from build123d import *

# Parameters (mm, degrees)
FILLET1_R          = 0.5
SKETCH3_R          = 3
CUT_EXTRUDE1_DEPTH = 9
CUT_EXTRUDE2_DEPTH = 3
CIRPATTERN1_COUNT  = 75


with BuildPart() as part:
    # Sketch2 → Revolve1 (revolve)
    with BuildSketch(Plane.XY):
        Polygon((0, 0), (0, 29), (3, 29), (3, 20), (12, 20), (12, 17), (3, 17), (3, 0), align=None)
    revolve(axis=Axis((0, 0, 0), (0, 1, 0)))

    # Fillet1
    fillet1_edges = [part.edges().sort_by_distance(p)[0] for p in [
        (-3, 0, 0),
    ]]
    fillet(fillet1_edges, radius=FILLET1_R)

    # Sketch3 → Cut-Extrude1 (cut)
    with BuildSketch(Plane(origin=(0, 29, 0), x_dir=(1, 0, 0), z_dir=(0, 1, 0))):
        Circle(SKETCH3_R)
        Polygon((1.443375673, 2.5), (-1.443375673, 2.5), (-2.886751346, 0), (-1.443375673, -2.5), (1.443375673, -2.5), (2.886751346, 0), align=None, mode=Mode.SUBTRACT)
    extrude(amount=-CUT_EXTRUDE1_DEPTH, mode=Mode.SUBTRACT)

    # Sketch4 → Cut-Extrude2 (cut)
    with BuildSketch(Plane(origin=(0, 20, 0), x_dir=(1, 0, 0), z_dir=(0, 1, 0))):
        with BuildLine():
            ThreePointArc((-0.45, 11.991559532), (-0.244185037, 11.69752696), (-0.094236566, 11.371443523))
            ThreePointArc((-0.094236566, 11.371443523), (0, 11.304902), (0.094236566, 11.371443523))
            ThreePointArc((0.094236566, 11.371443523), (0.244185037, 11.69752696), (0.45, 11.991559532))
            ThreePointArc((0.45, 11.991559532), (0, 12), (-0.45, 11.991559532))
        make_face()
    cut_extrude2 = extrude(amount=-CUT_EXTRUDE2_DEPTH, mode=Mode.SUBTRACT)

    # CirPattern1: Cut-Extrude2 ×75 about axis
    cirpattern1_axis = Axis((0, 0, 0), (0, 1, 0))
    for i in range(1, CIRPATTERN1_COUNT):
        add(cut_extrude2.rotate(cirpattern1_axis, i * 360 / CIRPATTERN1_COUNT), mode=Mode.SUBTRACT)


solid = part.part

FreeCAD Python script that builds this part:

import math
import FreeCAD as App
import Part
import Sketcher
Q = App.Units.Quantity


def edges_at(feature, points):
    """Names of the edges that pass closest to the given points."""
    edges = feature.Shape.Edges
    near = lambda p: min(range(len(edges)), key=lambda i: edges[i].distToShape(Part.Vertex(*p))[0])
    return sorted({f"Edge{near(p) + 1}" for p in points})


def add_polygon(sketch, points):
    """Adds a closed chain of lines whose ends are joined by coincident constraints."""
    first, n = sketch.GeometryCount, len(points)
    for a, b in zip(points, points[1:] + points[:1]):
        sketch.addGeometry(Part.LineSegment(App.Vector(*a, 0), App.Vector(*b, 0)), False)
    for i in range(n):
        sketch.addConstraint(Sketcher.Constraint("Coincident", first + i, 2, first + (i + 1) % n, 1))

doc = App.newDocument("Part")
body = doc.addObject("PartDesign::Body", "Body")

# Sketch on XY plane
sketch1 = body.newObject("Sketcher::SketchObject", "Sketch")
sketch1.AttachmentSupport = (doc.getObject("XY_Plane"), [""])
sketch1.MapMode = "FlatFace"
add_polygon(sketch1, [(0, 29), (0, 0), (3, 0), (3, 17), (12, 17), (12, 20), (3, 20), (3, 29)])  # lines 0-7
sketch1.addConstraint([
    Sketcher.Constraint("Vertical", 0),
    Sketcher.Constraint("Horizontal", 1),
    Sketcher.Constraint("Vertical", 2),
    Sketcher.Constraint("Horizontal", 3),
    Sketcher.Constraint("Vertical", 4),
    Sketcher.Constraint("Horizontal", 5),
    Sketcher.Constraint("Vertical", 6),
    Sketcher.Constraint("Horizontal", 7),
    Sketcher.Constraint("Coincident", 0, 2, -1, 1),
    Sketcher.Constraint("Vertical", 2, 2, 5, 2),
    Sketcher.Constraint("Equal", 7, 4),
    Sketcher.Constraint("Equal", 5, 6),
    Sketcher.Constraint("DistanceX", 1, 1, 1, 2, Q("3 mm")),
    Sketcher.Constraint("DistanceX", 3, 1, 3, 2, Q("9 mm")),
    Sketcher.Constraint("DistanceY", 0, 2, 0, 1, Q("29 mm")),
])
revolution = body.newObject("PartDesign::Revolution", "Revolution")
revolution.Profile = sketch1
revolution.ReferenceAxis = (sketch1, ["V_Axis"])
revolution.Angle = 360
doc.recompute()

fillet = body.newObject("PartDesign::Fillet", "Fillet")
fillet.Base = (revolution, edges_at(revolution, [(-3, 0, 0)]))
fillet.Radius = 0.5

# Sketch on XZ plane
sketch2 = body.newObject("Sketcher::SketchObject", "Sketch001")
sketch2.AttachmentSupport = (doc.getObject("XZ_Plane"), [""])
sketch2.MapMode = "FlatFace"
sketch2.AttachmentOffset = App.Placement(App.Vector(0, 0, -29), App.Rotation())
sketch2.addGeometry(Part.Circle(App.Vector(0, 0, 0), App.Vector(0, 0, 1), 3), False)  # 0
add_polygon(sketch2, [(-1.4, -2.5), (1.4, -2.5), (2.9, 0), (1.4, 2.5), (-1.4, 2.5), (-2.9, 0)])  # lines 1-6
sketch2.addConstraint([
    Sketcher.Constraint("Horizontal", 1),
    Sketcher.Constraint("Horizontal", 4),
    Sketcher.Constraint("Coincident", 0, 3, -1, 1),
    Sketcher.Constraint("Symmetric", 1, 2, 4, 2, -1, 1),
    Sketcher.Constraint("Symmetric", 2, 2, 5, 2, -1, 1),
    Sketcher.Constraint("PointOnObject", 2, 2, -1),
    Sketcher.Constraint("Parallel", 3, 6),
    Sketcher.Constraint("Vertical", 1, 2, 3, 2),
    Sketcher.Constraint("Diameter", 0, Q("6 mm")),
    Sketcher.Constraint("Angle", 2, Q("60 deg")),
    Sketcher.Constraint("DistanceY", 1, 2, 3, 2, Q("5 mm")),
    Sketcher.Constraint("DistanceX", 1, 1, 1, 2, Q("2.886751 mm")),
])
pocket1 = body.newObject("PartDesign::Pocket", "Pocket")
pocket1.Profile = sketch2
pocket1.Length = 9
pocket1.Reversed = True

# Sketch on XZ plane
sketch3 = body.newObject("Sketcher::SketchObject", "Sketch002")
sketch3.AttachmentSupport = (doc.getObject("XZ_Plane"), [""])
sketch3.MapMode = "FlatFace"
sketch3.AttachmentOffset = App.Placement(App.Vector(0, 0, -20), App.Rotation())
sketch3.addGeometry([
    Part.ArcOfCircle(Part.Circle(App.Vector(-1.98, -10.7, 0), App.Vector(0, 0, 1), 2), math.radians(-40), math.radians(-20)),
    Part.ArcOfCircle(Part.Circle(App.Vector(0, -11.4, 0), App.Vector(0, 0, 1), 0.1), math.radians(20), math.radians(160)),
    Part.ArcOfCircle(Part.Circle(App.Vector(1.98, -10.7, 0), App.Vector(0, 0, 1), 2), math.radians(-160), math.radians(-140)),
    Part.ArcOfCircle(Part.Circle(App.Vector(0, 0, 0), App.Vector(0, 0, 1), 12), math.radians(-92.15), math.radians(-87.85)),
], False)
sketch3.addConstraint([
    Sketcher.Constraint("Tangent", 0, 2, 1, 2),
    Sketcher.Constraint("Tangent", 1, 1, 2, 1),
    Sketcher.Constraint("Coincident", 2, 2, 3, 2),
    Sketcher.Constraint("Coincident", 3, 1, 0, 1),
    Sketcher.Constraint("Coincident", 3, 3, -1, 1),
    Sketcher.Constraint("Equal", 0, 2),
    Sketcher.Constraint("Symmetric", 0, 3, 2, 3, -2),
    Sketcher.Constraint("Radius", 0, Q("2 mm")),
    Sketcher.Constraint("Radius", 3, Q("12.000001 mm")),
    Sketcher.Constraint("Radius", 1, Q("0.1 mm")),
    Sketcher.Constraint("DistanceX", 3, 1, 2, 2, Q("0.9 mm")),
    Sketcher.Constraint("DistanceY", 1, 3, 0, 3, Q("0.702628 mm")),
])
pocket2 = body.newObject("PartDesign::Pocket", "Pocket001")
pocket2.Profile = sketch3
pocket2.Length = 3
pocket2.Reversed = True
doc.recompute()

polarpattern = body.newObject("PartDesign::PolarPattern", "PolarPattern")
polarpattern.Originals = [pocket2]
polarpattern.Axis = (doc.getObject("Y_Axis"), [""])
polarpattern.Angle = 360
polarpattern.Occurrences = 75
body.Tip = polarpattern

doc.recompute()
